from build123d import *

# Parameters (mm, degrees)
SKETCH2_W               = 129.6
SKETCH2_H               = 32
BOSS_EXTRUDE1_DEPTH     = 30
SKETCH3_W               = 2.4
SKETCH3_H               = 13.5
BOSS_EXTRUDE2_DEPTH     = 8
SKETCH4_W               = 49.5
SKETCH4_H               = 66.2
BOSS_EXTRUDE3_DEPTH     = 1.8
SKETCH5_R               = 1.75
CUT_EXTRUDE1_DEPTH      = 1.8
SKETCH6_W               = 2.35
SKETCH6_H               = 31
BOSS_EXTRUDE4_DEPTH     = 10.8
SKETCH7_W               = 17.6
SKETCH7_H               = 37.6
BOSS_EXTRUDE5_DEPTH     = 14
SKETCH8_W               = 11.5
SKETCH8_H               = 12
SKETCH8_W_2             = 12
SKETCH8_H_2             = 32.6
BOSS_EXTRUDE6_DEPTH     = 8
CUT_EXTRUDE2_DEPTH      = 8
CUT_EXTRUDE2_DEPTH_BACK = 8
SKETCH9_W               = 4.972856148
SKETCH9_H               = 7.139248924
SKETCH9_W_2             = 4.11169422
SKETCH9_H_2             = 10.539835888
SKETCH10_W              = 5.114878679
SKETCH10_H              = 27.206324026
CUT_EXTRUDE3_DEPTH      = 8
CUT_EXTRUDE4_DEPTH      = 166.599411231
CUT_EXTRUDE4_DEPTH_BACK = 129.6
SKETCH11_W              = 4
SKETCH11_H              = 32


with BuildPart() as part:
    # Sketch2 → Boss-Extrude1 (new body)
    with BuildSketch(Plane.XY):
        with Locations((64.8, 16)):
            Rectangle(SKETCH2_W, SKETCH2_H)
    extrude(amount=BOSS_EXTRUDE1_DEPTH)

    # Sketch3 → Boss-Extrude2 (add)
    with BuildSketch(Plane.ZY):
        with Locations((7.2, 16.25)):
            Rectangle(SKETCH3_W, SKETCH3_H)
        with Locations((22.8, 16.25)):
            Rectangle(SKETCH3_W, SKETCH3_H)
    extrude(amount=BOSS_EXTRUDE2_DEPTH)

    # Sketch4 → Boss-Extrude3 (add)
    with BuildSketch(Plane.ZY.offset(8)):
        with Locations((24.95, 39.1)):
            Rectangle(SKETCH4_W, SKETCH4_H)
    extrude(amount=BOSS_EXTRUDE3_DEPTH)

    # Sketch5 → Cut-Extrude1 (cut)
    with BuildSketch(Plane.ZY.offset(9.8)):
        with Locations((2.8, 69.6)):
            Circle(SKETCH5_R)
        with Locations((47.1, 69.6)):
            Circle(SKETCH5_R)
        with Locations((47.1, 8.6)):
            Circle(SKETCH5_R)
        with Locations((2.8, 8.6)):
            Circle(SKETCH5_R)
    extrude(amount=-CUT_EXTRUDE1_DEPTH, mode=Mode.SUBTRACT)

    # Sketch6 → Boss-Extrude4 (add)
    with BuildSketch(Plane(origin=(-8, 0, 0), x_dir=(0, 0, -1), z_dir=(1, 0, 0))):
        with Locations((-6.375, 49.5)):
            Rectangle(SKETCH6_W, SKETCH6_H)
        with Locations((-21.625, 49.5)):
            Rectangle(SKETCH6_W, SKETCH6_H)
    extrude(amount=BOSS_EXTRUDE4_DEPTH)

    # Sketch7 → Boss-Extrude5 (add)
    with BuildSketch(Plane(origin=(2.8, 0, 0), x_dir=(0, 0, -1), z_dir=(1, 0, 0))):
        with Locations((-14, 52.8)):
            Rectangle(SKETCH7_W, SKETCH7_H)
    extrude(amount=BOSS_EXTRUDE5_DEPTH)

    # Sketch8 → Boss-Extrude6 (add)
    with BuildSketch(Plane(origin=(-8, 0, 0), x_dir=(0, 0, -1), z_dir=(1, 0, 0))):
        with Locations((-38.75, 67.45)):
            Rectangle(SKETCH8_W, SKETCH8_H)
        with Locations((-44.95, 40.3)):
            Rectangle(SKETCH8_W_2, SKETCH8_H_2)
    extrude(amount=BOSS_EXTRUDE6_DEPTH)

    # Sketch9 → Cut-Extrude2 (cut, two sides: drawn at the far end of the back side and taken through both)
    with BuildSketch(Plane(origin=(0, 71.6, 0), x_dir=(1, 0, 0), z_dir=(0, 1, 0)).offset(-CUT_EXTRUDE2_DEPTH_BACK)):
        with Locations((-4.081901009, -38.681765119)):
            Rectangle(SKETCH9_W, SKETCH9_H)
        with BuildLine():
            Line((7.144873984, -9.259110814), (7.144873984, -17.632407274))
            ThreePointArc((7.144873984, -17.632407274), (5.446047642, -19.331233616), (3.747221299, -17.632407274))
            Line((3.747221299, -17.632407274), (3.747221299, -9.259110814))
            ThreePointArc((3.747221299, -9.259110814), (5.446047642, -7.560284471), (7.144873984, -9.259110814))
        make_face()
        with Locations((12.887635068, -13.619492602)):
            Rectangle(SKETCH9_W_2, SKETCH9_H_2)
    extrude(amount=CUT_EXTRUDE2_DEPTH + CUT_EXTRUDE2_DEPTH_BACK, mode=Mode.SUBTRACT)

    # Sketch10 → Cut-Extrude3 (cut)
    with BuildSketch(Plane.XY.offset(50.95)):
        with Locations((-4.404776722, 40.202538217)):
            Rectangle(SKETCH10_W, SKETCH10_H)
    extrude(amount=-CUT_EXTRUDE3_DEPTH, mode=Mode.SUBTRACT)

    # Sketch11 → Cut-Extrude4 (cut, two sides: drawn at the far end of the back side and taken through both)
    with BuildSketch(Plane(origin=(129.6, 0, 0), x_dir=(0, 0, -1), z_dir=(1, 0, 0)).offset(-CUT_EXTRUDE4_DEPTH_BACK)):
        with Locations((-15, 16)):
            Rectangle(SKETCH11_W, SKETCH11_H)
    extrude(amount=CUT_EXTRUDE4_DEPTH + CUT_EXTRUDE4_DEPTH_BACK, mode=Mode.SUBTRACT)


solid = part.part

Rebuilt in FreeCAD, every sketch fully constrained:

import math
import FreeCAD as App
import Part
import Sketcher

V = App.Vector
Q = App.Units.Quantity


def add_polygon(sketch, points):
    """Adds a closed chain of lines whose ends are joined by coincident constraints."""
    first, n = sketch.GeometryCount, len(points)
    for a, b in zip(points, points[1:] + points[:1]):
        sketch.addGeometry(Part.LineSegment(App.Vector(*a, 0), App.Vector(*b, 0)), False)
    for i in range(n):
        sketch.addConstraint(Sketcher.Constraint("Coincident", first + i, 2, first + (i + 1) % n, 1))

doc = App.newDocument("Part")
body = doc.addObject("PartDesign::Body", "Body")

# Sketch on XY plane
sketch1 = doc.addObject("Sketcher::SketchObject", "Sketch")
body.addObject(sketch1)
sketch1.AttachmentSupport = (doc.XY_Plane, [""])
sketch1.MapMode = "FlatFace"
add_polygon(sketch1, [(0, 32), (0, 0), (129.6, 0), (129.6, 32)])  # lines 0-3
sketch1.addConstraint(Sketcher.Constraint("Vertical", 0))
sketch1.addConstraint(Sketcher.Constraint("Horizontal", 1))
sketch1.addConstraint(Sketcher.Constraint("Vertical", 2))
sketch1.addConstraint(Sketcher.Constraint("Horizontal", 3))
sketch1.addConstraint(Sketcher.Constraint("Coincident", 0, 2, -1, 1))
sketch1.addConstraint(Sketcher.Constraint("DistanceY", 0, 2, 0, 1, Q("32 mm")))
sketch1.addConstraint(Sketcher.Constraint("DistanceX", 1, 1, 1, 2, Q("129.6 mm")))
pad1 = doc.addObject("PartDesign::Pad", "Pad")
body.addObject(pad1)
pad1.Profile = sketch1
pad1.Length = 30

# Sketch on YZ plane
sketch2 = doc.addObject("Sketcher::SketchObject", "Sketch001")
body.addObject(sketch2)
sketch2.AttachmentSupport = (doc.YZ_Plane, [""])
sketch2.MapMode = "FlatFace"
add_polygon(sketch2, [(23, 6), (9.5, 6), (9.5, 8.4), (23, 8.4)])  # lines 0-3
add_polygon(sketch2, [(23, 21.6), (9.5, 21.6), (9.5, 24), (23, 24)])  # lines 4-7
sketch2.addConstraint(Sketcher.Constraint("Horizontal", 0))
sketch2.addConstraint(Sketcher.Constraint("Vertical", 1))
sketch2.addConstraint(Sketcher.Constraint("Horizontal", 2))
sketch2.addConstraint(Sketcher.Constraint("Vertical", 3))
sketch2.addConstraint(Sketcher.Constraint("Horizontal", 4))
sketch2.addConstraint(Sketcher.Constraint("Vertical", 5))
sketch2.addConstraint(Sketcher.Constraint("Horizontal", 6))
sketch2.addConstraint(Sketcher.Constraint("Vertical", 7))
sketch2.addConstraint(Sketcher.Constraint("Vertical", 1, 2, 4, 2))
sketch2.addConstraint(Sketcher.Constraint("Vertical", 3, 2, 6, 2))
sketch2.addConstraint(Sketcher.Constraint("Equal", 3, 5))
sketch2.addConstraint(Sketcher.Constraint("DistanceX", 0, 2, 0, 1, Q("13.5 mm")))
sketch2.addConstraint(Sketcher.Constraint("DistanceY", 1, 1, 1, 2, Q("2.4 mm")))
sketch2.addConstraint(Sketcher.Constraint("DistanceY", -1, 1, 0, 2, Q("6 mm")))
sketch2.addConstraint(Sketcher.Constraint("DistanceX", -1, 1, 2, 2, Q("23 mm")))
sketch2.addConstraint(Sketcher.Constraint("DistanceY", -1, 1, 5, 2, Q("24 mm")))
pad2 = doc.addObject("PartDesign::Pad", "Pad001")
body.addObject(pad2)
pad2.Profile = sketch2
pad2.Length = 8
pad2.Reversed = True

# Sketch on YZ plane
sketch3 = doc.addObject("Sketcher::SketchObject", "Sketch002")
body.addObject(sketch3)
sketch3.AttachmentSupport = (doc.YZ_Plane, [""])
sketch3.MapMode = "FlatFace"
sketch3.AttachmentOffset = App.Placement(V(0, 0, -8), App.Rotation())
add_polygon(sketch3, [(72.2, 0.2), (6, 0.2), (6, 49.7), (72.2, 49.7)])  # lines 0-3
sketch3.addConstraint(Sketcher.Constraint("Horizontal", 0))
sketch3.addConstraint(Sketcher.Constraint("Vertical", 1))
sketch3.addConstraint(Sketcher.Constraint("Horizontal", 2))
sketch3.addConstraint(Sketcher.Constraint("Vertical", 3))
sketch3.addConstraint(Sketcher.Constraint("DistanceX", 0, 2, 0, 1, Q("66.2 mm")))
sketch3.addConstraint(Sketcher.Constraint("DistanceY", 1, 1, 1, 2, Q("49.5 mm")))
sketch3.addConstraint(Sketcher.Constraint("DistanceX", -1, 1, 0, 2, Q("6 mm")))
sketch3.addConstraint(Sketcher.Constraint("DistanceY", -1, 1, 0, 2, Q("0.2 mm")))
pad3 = doc.addObject("PartDesign::Pad", "Pad002")
body.addObject(pad3)
pad3.Profile = sketch3
pad3.Length = 1.8
pad3.Reversed = True

# Sketch on YZ plane
sketch4 = doc.addObject("Sketcher::SketchObject", "Sketch003")
body.addObject(sketch4)
sketch4.AttachmentSupport = (doc.YZ_Plane, [""])
sketch4.MapMode = "FlatFace"
sketch4.AttachmentOffset = App.Placement(V(0, 0, -9.8), App.Rotation())
sketch4.addGeometry(Part.Circle(V(69.6, 2.8, 0), V(0, 0, 1), 1.75), False)
sketch4.addGeometry(Part.Circle(V(69.6, 47.1, 0), V(0, 0, 1), 1.75), False)
sketch4.addGeometry(Part.Circle(V(8.6, 47.1, 0), V(0, 0, 1), 1.75), False)
sketch4.addGeometry(Part.Circle(V(8.6, 2.8, 0), V(0, 0, 1), 1.75), False)
sketch4.addConstraint(Sketcher.Constraint("Equal", 0, 1))
sketch4.addConstraint(Sketcher.Constraint("Equal", 1, 2))
sketch4.addConstraint(Sketcher.Constraint("Equal", 2, 3))
sketch4.addConstraint(Sketcher.Constraint("Horizontal", 1, 3, 2, 3))
sketch4.addConstraint(Sketcher.Constraint("Horizontal", 0, 3, 3, 3))
sketch4.addConstraint(Sketcher.Constraint("Vertical", 0, 3, 1, 3))
sketch4.addConstraint(Sketcher.Constraint("Vertical", 2, 3, 3, 3))
sketch4.addConstraint(Sketcher.Constraint("Diameter", 0, Q("3.5 mm")))
sketch4.addConstraint(Sketcher.Constraint("DistanceX", 2, 3, 1, 3, Q("61 mm")))
sketch4.addConstraint(Sketcher.Constraint("DistanceX", -1, 1, 0, 3, Q("69.6 mm")))
sketch4.addConstraint(Sketcher.Constraint("DistanceY", -1, 1, 0, 3, Q("2.8 mm")))
sketch4.addConstraint(Sketcher.Constraint("DistanceY", -1, 1, 1, 3, Q("47.1 mm")))
pocket1 = doc.addObject("PartDesign::Pocket", "Pocket")
body.addObject(pocket1)
pocket1.Profile = sketch4
pocket1.Length = 1.8
pocket1.Reversed = True

# Sketch on YZ plane
sketch5 = doc.addObject("Sketcher::SketchObject", "Sketch004")
body.addObject(sketch5)
sketch5.AttachmentSupport = (doc.YZ_Plane, [""])
sketch5.MapMode = "FlatFace"
sketch5.AttachmentOffset = App.Placement(V(0, 0, -8), App.Rotation())
add_polygon(sketch5, [(65, 7.55), (34, 7.55), (34, 5.2), (65, 5.2)])  # lines 0-3
add_polygon(sketch5, [(65, 22.8), (34, 22.8), (34, 20.45), (65, 20.45)])  # lines 4-7
sketch5.addConstraint(Sketcher.Constraint("Horizontal", 0))
sketch5.addConstraint(Sketcher.Constraint("Vertical", 1))
sketch5.addConstraint(Sketcher.Constraint("Horizontal", 2))
sketch5.addConstraint(Sketcher.Constraint("Vertical", 3))
sketch5.addConstraint(Sketcher.Constraint("Horizontal", 4))
sketch5.addConstraint(Sketcher.Constraint("Vertical", 5))
sketch5.addConstraint(Sketcher.Constraint("Horizontal", 6))
sketch5.addConstraint(Sketcher.Constraint("Vertical", 7))
sketch5.addConstraint(Sketcher.Constraint("Vertical", 1, 2, 4, 2))
sketch5.addConstraint(Sketcher.Constraint("Vertical", 3, 2, 6, 2))
sketch5.addConstraint(Sketcher.Constraint("Equal", 3, 5))
sketch5.addConstraint(Sketcher.Constraint("DistanceX", 0, 2, 0, 1, Q("31 mm")))
sketch5.addConstraint(Sketcher.Constraint("DistanceX", -1, 1, 0, 2, Q("34 mm")))
sketch5.addConstraint(Sketcher.Constraint("DistanceY", 1, 2, 1, 1, Q("2.35 mm")))
sketch5.addConstraint(Sketcher.Constraint("DistanceY", -1, 1, 1, 2, Q("5.2 mm")))
sketch5.addConstraint(Sketcher.Constraint("DistanceY", -1, 1, 4, 2, Q("22.8 mm")))
pad4 = doc.addObject("PartDesign::Pad", "Pad003")
body.addObject(pad4)
pad4.Profile = sketch5
pad4.Length = 10.8

# Sketch on YZ plane
sketch6 = doc.addObject("Sketcher::SketchObject", "Sketch005")
body.addObject(sketch6)
sketch6.AttachmentSupport = (doc.YZ_Plane, [""])
sketch6.MapMode = "FlatFace"
sketch6.AttachmentOffset = App.Placement(V(0, 0, 2.8), App.Rotation())
add_polygon(sketch6, [(71.6, 22.8), (34, 22.8), (34, 5.2), (71.6, 5.2)])  # lines 0-3
sketch6.addConstraint(Sketcher.Constraint("Horizontal", 0))
sketch6.addConstraint(Sketcher.Constraint("Vertical", 1))
sketch6.addConstraint(Sketcher.Constraint("Horizontal", 2))
sketch6.addConstraint(Sketcher.Constraint("Vertical", 3))
sketch6.addConstraint(Sketcher.Constraint("DistanceX", 0, 2, 0, 1, Q("37.6 mm")))
sketch6.addConstraint(Sketcher.Constraint("DistanceY", 1, 2, 1, 1, Q("17.6 mm")))
sketch6.addConstraint(Sketcher.Constraint("DistanceX", -1, 1, 0, 2, Q("34 mm")))
sketch6.addConstraint(Sketcher.Constraint("DistanceY", -1, 1, 0, 2, Q("22.8 mm")))
pad5 = doc.addObject("PartDesign::Pad", "Pad004")
body.addObject(pad5)
pad5.Profile = sketch6
pad5.Length = 14

# Sketch on YZ plane
sketch7 = doc.addObject("Sketcher::SketchObject", "Sketch006")
body.addObject(sketch7)
sketch7.AttachmentSupport = (doc.YZ_Plane, [""])
sketch7.MapMode = "FlatFace"
sketch7.AttachmentOffset = App.Placement(V(0, 0, -8), App.Rotation())
add_polygon(sketch7, [(73.45, 44.5), (61.45, 44.5), (61.45, 33), (73.45, 33)])  # lines 0-3
add_polygon(sketch7, [(56.6, 50.95), (24, 50.95), (24, 38.95), (56.6, 38.95)])  # lines 4-7
sketch7.addConstraint(Sketcher.Constraint("Horizontal", 0))
sketch7.addConstraint(Sketcher.Constraint("Vertical", 1))
sketch7.addConstraint(Sketcher.Constraint("Horizontal", 2))
sketch7.addConstraint(Sketcher.Constraint("Vertical", 3))
sketch7.addConstraint(Sketcher.Constraint("Horizontal", 4))
sketch7.addConstraint(Sketcher.Constraint("Vertical", 5))
sketch7.addConstraint(Sketcher.Constraint("Horizontal", 6))
sketch7.addConstraint(Sketcher.Constraint("Vertical", 7))
sketch7.addConstraint(Sketcher.Constraint("Equal", 2, 5))
sketch7.addConstraint(Sketcher.Constraint("DistanceX", 0, 2, 0, 1, Q("12 mm")))
sketch7.addConstraint(Sketcher.Constraint("DistanceX", 4, 2, 4, 1, Q("32.6 mm")))
sketch7.addConstraint(Sketcher.Constraint("DistanceY", 1, 2, 1, 1, Q("11.5 mm")))
sketch7.addConstraint(Sketcher.Constraint("DistanceY", -1, 1, 1, 2, Q("33 mm")))
sketch7.addConstraint(Sketcher.Constraint("DistanceX", -1, 1, 4, 2, Q("24 mm")))
sketch7.addConstraint(Sketcher.Constraint("DistanceX", -1, 1, 0, 2, Q("61.45 mm")))
sketch7.addConstraint(Sketcher.Constraint("DistanceY", -1, 1, 4, 2, Q("50.95 mm")))
pad6 = doc.addObject("PartDesign::Pad", "Pad005")
body.addObject(pad6)
pad6.Profile = sketch7
pad6.Length = 8

# Sketch on XZ plane
sketch8 = doc.addObject("Sketcher::SketchObject", "Sketch007")
body.addObject(sketch8)
sketch8.AttachmentSupport = (doc.XZ_Plane, [""])
sketch8.MapMode = "FlatFace"
sketch8.AttachmentOffset = App.Placement(V(0, 0, -71.6), App.Rotation())
add_polygon(sketch8, [(-6.568329, 35.112141), (-6.568329, 42.25139), (-1.595473, 42.25139), (-1.595473, 35.112141)])  # lines 0-3
sketch8.addGeometry(Part.LineSegment(V(7.144874, 17.632407, 0), V(7.144874, 9.259111, 0)), False)  # 4
sketch8.addGeometry(Part.ArcOfCircle(Part.Circle(V(5.446048, 9.259111, 0), V(0, 0, 1), 1.698826), math.radians(180), math.radians(360)), False)  # 5
sketch8.addGeometry(Part.LineSegment(V(3.747221, 9.259111, 0), V(3.747221, 17.632407, 0)), False)  # 6
sketch8.addGeometry(Part.ArcOfCircle(Part.Circle(V(5.446048, 17.632407, 0), V(0, 0, 1), 1.698826), math.radians(0), math.radians(180)), False)  # 7
add_polygon(sketch8, [(10.831788, 8.349575), (10.831788, 18.889411), (14.943482, 18.889411), (14.943482, 8.349575)])  # lines 8-11
sketch8.addConstraint(Sketcher.Constraint("Tangent", 4, 2, 5, 2))
sketch8.addConstraint(Sketcher.Constraint("Tangent", 5, 1, 6, 1))
sketch8.addConstraint(Sketcher.Constraint("Tangent", 6, 2, 7, 2))
sketch8.addConstraint(Sketcher.Constraint("Tangent", 7, 1, 4, 1))
sketch8.addConstraint(Sketcher.Constraint("Vertical", 0))
sketch8.addConstraint(Sketcher.Constraint("Horizontal", 1))
sketch8.addConstraint(Sketcher.Constraint("Vertical", 2))
sketch8.addConstraint(Sketcher.Constraint("Horizontal", 3))
sketch8.addConstraint(Sketcher.Constraint("Vertical", 4))
sketch8.addConstraint(Sketcher.Constraint("Vertical", 6))
sketch8.addConstraint(Sketcher.Constraint("Vertical", 8))
sketch8.addConstraint(Sketcher.Constraint("Horizontal", 9))
sketch8.addConstraint(Sketcher.Constraint("Vertical", 10))
sketch8.addConstraint(Sketcher.Constraint("Horizontal", 11))
sketch8.addConstraint(Sketcher.Constraint("Radius", 5, Q("1.698826 mm")))
sketch8.addConstraint(Sketcher.Constraint("DistanceY", 0, 1, 0, 2, Q("7.139249 mm")))
sketch8.addConstraint(Sketcher.Constraint("DistanceY", 4, 2, 8, 2, Q("9.6303 mm")))
sketch8.addConstraint(Sketcher.Constraint("DistanceX", 1, 1, 1, 2, Q("4.972856 mm")))
sketch8.addConstraint(Sketcher.Constraint("DistanceX", 9, 1, 9, 2, Q("4.111694 mm")))
sketch8.addConstraint(Sketcher.Constraint("DistanceY", 4, 2, 4, 1, Q("8.373296 mm")))
sketch8.addConstraint(Sketcher.Constraint("DistanceY", 8, 1, 8, 2, Q("10.539836 mm")))
sketch8.addConstraint(Sketcher.Constraint("DistanceY", -1, 1, 5, 3, Q("9.259111 mm")))
sketch8.addConstraint(Sketcher.Constraint("DistanceX", 0, 2, -1, 1, Q("6.568329 mm")))
sketch8.addConstraint(Sketcher.Constraint("DistanceY", -1, 1, 0, 2, Q("42.25139 mm")))
sketch8.addConstraint(Sketcher.Constraint("DistanceX", -1, 1, 5, 1, Q("3.747221 mm")))
sketch8.addConstraint(Sketcher.Constraint("DistanceX", 7, 3, 8, 2, Q("5.38574 mm")))
pocket2 = doc.addObject("PartDesign::Pocket", "Pocket001")
body.addObject(pocket2)
pocket2.Profile = sketch8
pocket2.Type = "TwoLengths"
pocket2.Length = 8
pocket2.Length2 = 8

# Sketch on XY plane
sketch9 = doc.addObject("Sketcher::SketchObject", "Sketch008")
body.addObject(sketch9)
sketch9.AttachmentSupport = (doc.XY_Plane, [""])
sketch9.MapMode = "FlatFace"
sketch9.AttachmentOffset = App.Placement(V(0, 0, 50.95), App.Rotation())
add_polygon(sketch9, [(-6.962216, 53.8057), (-6.962216, 26.599376), (-1.847337, 26.599376), (-1.847337, 53.8057)])  # lines 0-3
sketch9.addConstraint(Sketcher.Constraint("Vertical", 0))
sketch9.addConstraint(Sketcher.Constraint("Horizontal", 1))
sketch9.addConstraint(Sketcher.Constraint("Vertical", 2))
sketch9.addConstraint(Sketcher.Constraint("Horizontal", 3))
sketch9.addConstraint(Sketcher.Constraint("DistanceX", 1, 1, 1, 2, Q("5.114879 mm")))
sketch9.addConstraint(Sketcher.Constraint("DistanceY", -1, 1, 2, 2, Q("53.8057 mm")))
sketch9.addConstraint(Sketcher.Constraint("DistanceY", 0, 2, 0, 1, Q("27.206324 mm")))
sketch9.addConstraint(Sketcher.Constraint("DistanceX", 0, 2, -1, 1, Q("6.962216 mm")))
pocket3 = doc.addObject("PartDesign::Pocket", "Pocket002")
body.addObject(pocket3)
pocket3.Profile = sketch9
pocket3.Length = 8

# Sketch on YZ plane
sketch10 = doc.addObject("Sketcher::SketchObject", "Sketch009")
body.addObject(sketch10)
sketch10.AttachmentSupport = (doc.YZ_Plane, [""])
sketch10.MapMode = "FlatFace"
sketch10.AttachmentOffset = App.Placement(V(0, 0, 129.6), App.Rotation())
add_polygon(sketch10, [(32, 17), (0, 17), (0, 13), (32, 13)])  # lines 0-3
sketch10.addConstraint(Sketcher.Constraint("Horizontal", 0))
sketch10.addConstraint(Sketcher.Constraint("Vertical", 1))
sketch10.addConstraint(Sketcher.Constraint("Horizontal", 2))
sketch10.addConstraint(Sketcher.Constraint("Vertical", 3))
sketch10.addConstraint(Sketcher.Constraint("PointOnObject", 0, 2, -2))
sketch10.addConstraint(Sketcher.Constraint("DistanceX", 0, 2, 0, 1, Q("32 mm")))
sketch10.addConstraint(Sketcher.Constraint("DistanceY", 1, 2, 1, 1, Q("4 mm")))
sketch10.addConstraint(Sketcher.Constraint("DistanceY", -1, 1, 0, 2, Q("17 mm")))
pocket4 = doc.addObject("PartDesign::Pocket", "Pocket003")
body.addObject(pocket4)
pocket4.Profile = sketch10
pocket4.Type = "TwoLengths"
pocket4.Length = 166.599411
pocket4.Length2 = 129.6
pocket4.Reversed = True

doc.recompute()
